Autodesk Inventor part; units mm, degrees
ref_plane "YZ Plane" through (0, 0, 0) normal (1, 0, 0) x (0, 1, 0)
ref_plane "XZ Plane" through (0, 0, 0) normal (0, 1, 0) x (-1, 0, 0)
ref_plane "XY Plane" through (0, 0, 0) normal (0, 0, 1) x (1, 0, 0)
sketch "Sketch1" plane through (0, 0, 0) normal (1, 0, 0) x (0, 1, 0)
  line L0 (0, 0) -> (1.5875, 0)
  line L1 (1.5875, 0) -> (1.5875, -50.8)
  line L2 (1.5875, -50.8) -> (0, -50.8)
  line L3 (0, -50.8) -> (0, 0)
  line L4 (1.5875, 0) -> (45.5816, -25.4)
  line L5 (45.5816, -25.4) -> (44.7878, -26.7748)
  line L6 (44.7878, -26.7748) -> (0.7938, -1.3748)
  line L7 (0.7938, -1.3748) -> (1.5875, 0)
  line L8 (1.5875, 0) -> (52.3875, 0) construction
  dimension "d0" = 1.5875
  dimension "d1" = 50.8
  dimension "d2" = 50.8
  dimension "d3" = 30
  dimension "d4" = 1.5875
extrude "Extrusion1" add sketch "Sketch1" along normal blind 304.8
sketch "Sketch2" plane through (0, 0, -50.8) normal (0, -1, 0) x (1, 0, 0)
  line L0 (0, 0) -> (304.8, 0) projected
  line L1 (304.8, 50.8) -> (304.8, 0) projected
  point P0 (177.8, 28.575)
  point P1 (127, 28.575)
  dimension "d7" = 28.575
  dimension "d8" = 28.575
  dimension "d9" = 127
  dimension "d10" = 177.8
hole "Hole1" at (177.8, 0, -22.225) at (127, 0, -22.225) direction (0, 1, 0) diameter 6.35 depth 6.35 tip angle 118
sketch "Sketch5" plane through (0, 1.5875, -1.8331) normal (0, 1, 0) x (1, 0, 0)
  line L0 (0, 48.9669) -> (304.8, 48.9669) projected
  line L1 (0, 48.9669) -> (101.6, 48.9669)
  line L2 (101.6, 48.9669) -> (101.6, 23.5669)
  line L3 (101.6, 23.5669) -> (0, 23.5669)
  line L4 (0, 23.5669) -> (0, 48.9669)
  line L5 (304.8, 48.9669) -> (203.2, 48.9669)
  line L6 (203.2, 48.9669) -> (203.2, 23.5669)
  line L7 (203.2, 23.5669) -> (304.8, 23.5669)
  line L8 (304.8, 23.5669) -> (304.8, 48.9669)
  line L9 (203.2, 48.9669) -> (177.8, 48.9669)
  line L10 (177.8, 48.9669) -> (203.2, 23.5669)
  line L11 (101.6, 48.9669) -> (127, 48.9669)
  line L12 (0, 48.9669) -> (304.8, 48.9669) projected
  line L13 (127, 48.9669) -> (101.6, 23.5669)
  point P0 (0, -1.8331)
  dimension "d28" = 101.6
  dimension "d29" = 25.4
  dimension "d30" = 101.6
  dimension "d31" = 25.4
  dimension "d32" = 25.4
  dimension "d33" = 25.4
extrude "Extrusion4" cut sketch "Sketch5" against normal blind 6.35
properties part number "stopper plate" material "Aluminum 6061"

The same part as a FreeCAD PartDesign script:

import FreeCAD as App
import Part
import Sketcher

V = App.Vector
Q = App.Units.Quantity


def add_polygon(sketch, points):
    """Adds a closed chain of lines whose ends are joined by coincident constraints."""
    first, n = sketch.GeometryCount, len(points)
    for a, b in zip(points, points[1:] + points[:1]):
        sketch.addGeometry(Part.LineSegment(App.Vector(*a, 0), App.Vector(*b, 0)), False)
    for i in range(n):
        sketch.addConstraint(Sketcher.Constraint("Coincident", first + i, 2, first + (i + 1) % n, 1))

doc = App.newDocument("Part")
body = doc.addObject("PartDesign::Body", "Body")

# Sketch on YZ plane
sketch1 = body.newObject("Sketcher::SketchObject", "Sketch")
sketch1.AttachmentSupport = (doc.getObject("YZ_Plane"), [""])
sketch1.MapMode = "FlatFace"
add_polygon(sketch1, [(1.6, 0), (0, 0), (0, -50.8), (1.6, -50.8), (1.6, -1.8), (44.8, -26.8), (45.6, -25.4)])  # lines 0-6
sketch1.addConstraint(Sketcher.Constraint("Horizontal", 0))
sketch1.addConstraint(Sketcher.Constraint("Vertical", 1))
sketch1.addConstraint(Sketcher.Constraint("Horizontal", 2))
sketch1.addConstraint(Sketcher.Constraint("Vertical", 3))
sketch1.addConstraint(Sketcher.Constraint("Coincident", 0, 2, -1, 1))
sketch1.addConstraint(Sketcher.Constraint("Perpendicular", 4, 5))
sketch1.addConstraint(Sketcher.Constraint("Perpendicular", 5, 6))
sketch1.addConstraint(Sketcher.Constraint("Vertical", 3, 2, 6, 2))
sketch1.addConstraint(Sketcher.Constraint("DistanceY", 1, 2, 1, 1, Q("2 in")))
sketch1.addConstraint(Sketcher.Constraint("Distance", 6, Q("2 in")))
sketch1.addConstraint(Sketcher.Constraint("Angle", 4, Q("-30 deg")))
sketch1.addConstraint(Sketcher.Constraint("DistanceX", 0, 2, 0, 1, Q("0.0625 in")))
sketch1.addConstraint(Sketcher.Constraint("Distance", 5, Q("0.0625 in")))
pad1 = body.newObject("PartDesign::Pad", "Pad")
pad1.Profile = sketch1
pad1.Length = Q("12 in")

# Sketch on XZ plane
sketch2 = body.newObject("Sketcher::SketchObject", "Sketch001")
sketch2.AttachmentSupport = (doc.getObject("XZ_Plane"), [""])
sketch2.MapMode = "FlatFace"
sketch2.addGeometry(Part.Circle(V(177.8, -22.2, 0), V(0, 0, 1), 3.2), False)
sketch2.addGeometry(Part.Circle(V(127, -22.2, 0), V(0, 0, 1), 3.2), False)
sketch2.addConstraint(Sketcher.Constraint("Equal", 0, 1))
sketch2.addConstraint(Sketcher.Constraint("Horizontal", 0, 3, 1, 3))
sketch2.addConstraint(Sketcher.Constraint("Diameter", 0, Q("0.25 in")))
sketch2.addConstraint(Sketcher.Constraint("DistanceX", -1, 1, 0, 3, Q("7 in")))
sketch2.addConstraint(Sketcher.Constraint("DistanceX", -1, 1, 1, 3, Q("5 in")))
sketch2.addConstraint(Sketcher.Constraint("DistanceY", 0, 3, -1, 1, Q("0.875 in")))
doc.recompute()
hole = body.newObject("PartDesign::Hole", "Hole")
hole.Profile = sketch2
hole.ThreadType = "None"
hole.Diameter = Q("0.25 in")
hole.DepthType = "Dimension"
hole.Depth = Q("0.25 in")
hole.DrillPoint = "Angled"
hole.DrillPointAngle = 118

# Sketch on XZ plane
sketch3 = body.newObject("Sketcher::SketchObject", "Sketch002")
sketch3.AttachmentSupport = (doc.getObject("XZ_Plane"), [""])
sketch3.MapMode = "FlatFace"
sketch3.AttachmentOffset = App.Placement(V(0, 0, -0.0625 * 25.4), App.Rotation())
add_polygon(sketch3, [(178, -51), (203, -25), (305, -25), (305, -51)])  # lines 0-3
add_polygon(sketch3, [(0, -51), (0, -25), (102, -25), (127, -51)])  # lines 4-7
sketch3.addConstraint(Sketcher.Constraint("Horizontal", 1))
sketch3.addConstraint(Sketcher.Constraint("Vertical", 2))
sketch3.addConstraint(Sketcher.Constraint("Horizontal", 3))
sketch3.addConstraint(Sketcher.Constraint("Vertical", 4))
sketch3.addConstraint(Sketcher.Constraint("Horizontal", 5))
sketch3.addConstraint(Sketcher.Constraint("Horizontal", 7))
sketch3.addConstraint(Sketcher.Constraint("PointOnObject", 4, 2, -2))
sketch3.addConstraint(Sketcher.Constraint("Perpendicular", 0, 6))
sketch3.addConstraint(Sketcher.Constraint("Horizontal", 1, 2, 4, 2))
sketch3.addConstraint(Sketcher.Constraint("Horizontal", 3, 2, 6, 2))
sketch3.addConstraint(Sketcher.Constraint("Equal", 1, 5))
sketch3.addConstraint(Sketcher.Constraint("Equal", 3, 7))
sketch3.addConstraint(Sketcher.Constraint("DistanceX", 1, 1, 1, 2, Q("4 in")))
sketch3.addConstraint(Sketcher.Constraint("DistanceY", 2, 2, 2, 1, Q("1 in")))
sketch3.addConstraint(Sketcher.Constraint("DistanceY", 0, 2, -1, 1, Q("1 in")))
sketch3.addConstraint(Sketcher.Constraint("DistanceX", 5, 2, 0, 2, Q("4 in")))
pocket1 = body.newObject("PartDesign::Pocket", "Pocket")
pocket1.Profile = sketch3
pocket1.Length = Q("0.25 in")
pocket1.Reversed = True

doc.recompute()
